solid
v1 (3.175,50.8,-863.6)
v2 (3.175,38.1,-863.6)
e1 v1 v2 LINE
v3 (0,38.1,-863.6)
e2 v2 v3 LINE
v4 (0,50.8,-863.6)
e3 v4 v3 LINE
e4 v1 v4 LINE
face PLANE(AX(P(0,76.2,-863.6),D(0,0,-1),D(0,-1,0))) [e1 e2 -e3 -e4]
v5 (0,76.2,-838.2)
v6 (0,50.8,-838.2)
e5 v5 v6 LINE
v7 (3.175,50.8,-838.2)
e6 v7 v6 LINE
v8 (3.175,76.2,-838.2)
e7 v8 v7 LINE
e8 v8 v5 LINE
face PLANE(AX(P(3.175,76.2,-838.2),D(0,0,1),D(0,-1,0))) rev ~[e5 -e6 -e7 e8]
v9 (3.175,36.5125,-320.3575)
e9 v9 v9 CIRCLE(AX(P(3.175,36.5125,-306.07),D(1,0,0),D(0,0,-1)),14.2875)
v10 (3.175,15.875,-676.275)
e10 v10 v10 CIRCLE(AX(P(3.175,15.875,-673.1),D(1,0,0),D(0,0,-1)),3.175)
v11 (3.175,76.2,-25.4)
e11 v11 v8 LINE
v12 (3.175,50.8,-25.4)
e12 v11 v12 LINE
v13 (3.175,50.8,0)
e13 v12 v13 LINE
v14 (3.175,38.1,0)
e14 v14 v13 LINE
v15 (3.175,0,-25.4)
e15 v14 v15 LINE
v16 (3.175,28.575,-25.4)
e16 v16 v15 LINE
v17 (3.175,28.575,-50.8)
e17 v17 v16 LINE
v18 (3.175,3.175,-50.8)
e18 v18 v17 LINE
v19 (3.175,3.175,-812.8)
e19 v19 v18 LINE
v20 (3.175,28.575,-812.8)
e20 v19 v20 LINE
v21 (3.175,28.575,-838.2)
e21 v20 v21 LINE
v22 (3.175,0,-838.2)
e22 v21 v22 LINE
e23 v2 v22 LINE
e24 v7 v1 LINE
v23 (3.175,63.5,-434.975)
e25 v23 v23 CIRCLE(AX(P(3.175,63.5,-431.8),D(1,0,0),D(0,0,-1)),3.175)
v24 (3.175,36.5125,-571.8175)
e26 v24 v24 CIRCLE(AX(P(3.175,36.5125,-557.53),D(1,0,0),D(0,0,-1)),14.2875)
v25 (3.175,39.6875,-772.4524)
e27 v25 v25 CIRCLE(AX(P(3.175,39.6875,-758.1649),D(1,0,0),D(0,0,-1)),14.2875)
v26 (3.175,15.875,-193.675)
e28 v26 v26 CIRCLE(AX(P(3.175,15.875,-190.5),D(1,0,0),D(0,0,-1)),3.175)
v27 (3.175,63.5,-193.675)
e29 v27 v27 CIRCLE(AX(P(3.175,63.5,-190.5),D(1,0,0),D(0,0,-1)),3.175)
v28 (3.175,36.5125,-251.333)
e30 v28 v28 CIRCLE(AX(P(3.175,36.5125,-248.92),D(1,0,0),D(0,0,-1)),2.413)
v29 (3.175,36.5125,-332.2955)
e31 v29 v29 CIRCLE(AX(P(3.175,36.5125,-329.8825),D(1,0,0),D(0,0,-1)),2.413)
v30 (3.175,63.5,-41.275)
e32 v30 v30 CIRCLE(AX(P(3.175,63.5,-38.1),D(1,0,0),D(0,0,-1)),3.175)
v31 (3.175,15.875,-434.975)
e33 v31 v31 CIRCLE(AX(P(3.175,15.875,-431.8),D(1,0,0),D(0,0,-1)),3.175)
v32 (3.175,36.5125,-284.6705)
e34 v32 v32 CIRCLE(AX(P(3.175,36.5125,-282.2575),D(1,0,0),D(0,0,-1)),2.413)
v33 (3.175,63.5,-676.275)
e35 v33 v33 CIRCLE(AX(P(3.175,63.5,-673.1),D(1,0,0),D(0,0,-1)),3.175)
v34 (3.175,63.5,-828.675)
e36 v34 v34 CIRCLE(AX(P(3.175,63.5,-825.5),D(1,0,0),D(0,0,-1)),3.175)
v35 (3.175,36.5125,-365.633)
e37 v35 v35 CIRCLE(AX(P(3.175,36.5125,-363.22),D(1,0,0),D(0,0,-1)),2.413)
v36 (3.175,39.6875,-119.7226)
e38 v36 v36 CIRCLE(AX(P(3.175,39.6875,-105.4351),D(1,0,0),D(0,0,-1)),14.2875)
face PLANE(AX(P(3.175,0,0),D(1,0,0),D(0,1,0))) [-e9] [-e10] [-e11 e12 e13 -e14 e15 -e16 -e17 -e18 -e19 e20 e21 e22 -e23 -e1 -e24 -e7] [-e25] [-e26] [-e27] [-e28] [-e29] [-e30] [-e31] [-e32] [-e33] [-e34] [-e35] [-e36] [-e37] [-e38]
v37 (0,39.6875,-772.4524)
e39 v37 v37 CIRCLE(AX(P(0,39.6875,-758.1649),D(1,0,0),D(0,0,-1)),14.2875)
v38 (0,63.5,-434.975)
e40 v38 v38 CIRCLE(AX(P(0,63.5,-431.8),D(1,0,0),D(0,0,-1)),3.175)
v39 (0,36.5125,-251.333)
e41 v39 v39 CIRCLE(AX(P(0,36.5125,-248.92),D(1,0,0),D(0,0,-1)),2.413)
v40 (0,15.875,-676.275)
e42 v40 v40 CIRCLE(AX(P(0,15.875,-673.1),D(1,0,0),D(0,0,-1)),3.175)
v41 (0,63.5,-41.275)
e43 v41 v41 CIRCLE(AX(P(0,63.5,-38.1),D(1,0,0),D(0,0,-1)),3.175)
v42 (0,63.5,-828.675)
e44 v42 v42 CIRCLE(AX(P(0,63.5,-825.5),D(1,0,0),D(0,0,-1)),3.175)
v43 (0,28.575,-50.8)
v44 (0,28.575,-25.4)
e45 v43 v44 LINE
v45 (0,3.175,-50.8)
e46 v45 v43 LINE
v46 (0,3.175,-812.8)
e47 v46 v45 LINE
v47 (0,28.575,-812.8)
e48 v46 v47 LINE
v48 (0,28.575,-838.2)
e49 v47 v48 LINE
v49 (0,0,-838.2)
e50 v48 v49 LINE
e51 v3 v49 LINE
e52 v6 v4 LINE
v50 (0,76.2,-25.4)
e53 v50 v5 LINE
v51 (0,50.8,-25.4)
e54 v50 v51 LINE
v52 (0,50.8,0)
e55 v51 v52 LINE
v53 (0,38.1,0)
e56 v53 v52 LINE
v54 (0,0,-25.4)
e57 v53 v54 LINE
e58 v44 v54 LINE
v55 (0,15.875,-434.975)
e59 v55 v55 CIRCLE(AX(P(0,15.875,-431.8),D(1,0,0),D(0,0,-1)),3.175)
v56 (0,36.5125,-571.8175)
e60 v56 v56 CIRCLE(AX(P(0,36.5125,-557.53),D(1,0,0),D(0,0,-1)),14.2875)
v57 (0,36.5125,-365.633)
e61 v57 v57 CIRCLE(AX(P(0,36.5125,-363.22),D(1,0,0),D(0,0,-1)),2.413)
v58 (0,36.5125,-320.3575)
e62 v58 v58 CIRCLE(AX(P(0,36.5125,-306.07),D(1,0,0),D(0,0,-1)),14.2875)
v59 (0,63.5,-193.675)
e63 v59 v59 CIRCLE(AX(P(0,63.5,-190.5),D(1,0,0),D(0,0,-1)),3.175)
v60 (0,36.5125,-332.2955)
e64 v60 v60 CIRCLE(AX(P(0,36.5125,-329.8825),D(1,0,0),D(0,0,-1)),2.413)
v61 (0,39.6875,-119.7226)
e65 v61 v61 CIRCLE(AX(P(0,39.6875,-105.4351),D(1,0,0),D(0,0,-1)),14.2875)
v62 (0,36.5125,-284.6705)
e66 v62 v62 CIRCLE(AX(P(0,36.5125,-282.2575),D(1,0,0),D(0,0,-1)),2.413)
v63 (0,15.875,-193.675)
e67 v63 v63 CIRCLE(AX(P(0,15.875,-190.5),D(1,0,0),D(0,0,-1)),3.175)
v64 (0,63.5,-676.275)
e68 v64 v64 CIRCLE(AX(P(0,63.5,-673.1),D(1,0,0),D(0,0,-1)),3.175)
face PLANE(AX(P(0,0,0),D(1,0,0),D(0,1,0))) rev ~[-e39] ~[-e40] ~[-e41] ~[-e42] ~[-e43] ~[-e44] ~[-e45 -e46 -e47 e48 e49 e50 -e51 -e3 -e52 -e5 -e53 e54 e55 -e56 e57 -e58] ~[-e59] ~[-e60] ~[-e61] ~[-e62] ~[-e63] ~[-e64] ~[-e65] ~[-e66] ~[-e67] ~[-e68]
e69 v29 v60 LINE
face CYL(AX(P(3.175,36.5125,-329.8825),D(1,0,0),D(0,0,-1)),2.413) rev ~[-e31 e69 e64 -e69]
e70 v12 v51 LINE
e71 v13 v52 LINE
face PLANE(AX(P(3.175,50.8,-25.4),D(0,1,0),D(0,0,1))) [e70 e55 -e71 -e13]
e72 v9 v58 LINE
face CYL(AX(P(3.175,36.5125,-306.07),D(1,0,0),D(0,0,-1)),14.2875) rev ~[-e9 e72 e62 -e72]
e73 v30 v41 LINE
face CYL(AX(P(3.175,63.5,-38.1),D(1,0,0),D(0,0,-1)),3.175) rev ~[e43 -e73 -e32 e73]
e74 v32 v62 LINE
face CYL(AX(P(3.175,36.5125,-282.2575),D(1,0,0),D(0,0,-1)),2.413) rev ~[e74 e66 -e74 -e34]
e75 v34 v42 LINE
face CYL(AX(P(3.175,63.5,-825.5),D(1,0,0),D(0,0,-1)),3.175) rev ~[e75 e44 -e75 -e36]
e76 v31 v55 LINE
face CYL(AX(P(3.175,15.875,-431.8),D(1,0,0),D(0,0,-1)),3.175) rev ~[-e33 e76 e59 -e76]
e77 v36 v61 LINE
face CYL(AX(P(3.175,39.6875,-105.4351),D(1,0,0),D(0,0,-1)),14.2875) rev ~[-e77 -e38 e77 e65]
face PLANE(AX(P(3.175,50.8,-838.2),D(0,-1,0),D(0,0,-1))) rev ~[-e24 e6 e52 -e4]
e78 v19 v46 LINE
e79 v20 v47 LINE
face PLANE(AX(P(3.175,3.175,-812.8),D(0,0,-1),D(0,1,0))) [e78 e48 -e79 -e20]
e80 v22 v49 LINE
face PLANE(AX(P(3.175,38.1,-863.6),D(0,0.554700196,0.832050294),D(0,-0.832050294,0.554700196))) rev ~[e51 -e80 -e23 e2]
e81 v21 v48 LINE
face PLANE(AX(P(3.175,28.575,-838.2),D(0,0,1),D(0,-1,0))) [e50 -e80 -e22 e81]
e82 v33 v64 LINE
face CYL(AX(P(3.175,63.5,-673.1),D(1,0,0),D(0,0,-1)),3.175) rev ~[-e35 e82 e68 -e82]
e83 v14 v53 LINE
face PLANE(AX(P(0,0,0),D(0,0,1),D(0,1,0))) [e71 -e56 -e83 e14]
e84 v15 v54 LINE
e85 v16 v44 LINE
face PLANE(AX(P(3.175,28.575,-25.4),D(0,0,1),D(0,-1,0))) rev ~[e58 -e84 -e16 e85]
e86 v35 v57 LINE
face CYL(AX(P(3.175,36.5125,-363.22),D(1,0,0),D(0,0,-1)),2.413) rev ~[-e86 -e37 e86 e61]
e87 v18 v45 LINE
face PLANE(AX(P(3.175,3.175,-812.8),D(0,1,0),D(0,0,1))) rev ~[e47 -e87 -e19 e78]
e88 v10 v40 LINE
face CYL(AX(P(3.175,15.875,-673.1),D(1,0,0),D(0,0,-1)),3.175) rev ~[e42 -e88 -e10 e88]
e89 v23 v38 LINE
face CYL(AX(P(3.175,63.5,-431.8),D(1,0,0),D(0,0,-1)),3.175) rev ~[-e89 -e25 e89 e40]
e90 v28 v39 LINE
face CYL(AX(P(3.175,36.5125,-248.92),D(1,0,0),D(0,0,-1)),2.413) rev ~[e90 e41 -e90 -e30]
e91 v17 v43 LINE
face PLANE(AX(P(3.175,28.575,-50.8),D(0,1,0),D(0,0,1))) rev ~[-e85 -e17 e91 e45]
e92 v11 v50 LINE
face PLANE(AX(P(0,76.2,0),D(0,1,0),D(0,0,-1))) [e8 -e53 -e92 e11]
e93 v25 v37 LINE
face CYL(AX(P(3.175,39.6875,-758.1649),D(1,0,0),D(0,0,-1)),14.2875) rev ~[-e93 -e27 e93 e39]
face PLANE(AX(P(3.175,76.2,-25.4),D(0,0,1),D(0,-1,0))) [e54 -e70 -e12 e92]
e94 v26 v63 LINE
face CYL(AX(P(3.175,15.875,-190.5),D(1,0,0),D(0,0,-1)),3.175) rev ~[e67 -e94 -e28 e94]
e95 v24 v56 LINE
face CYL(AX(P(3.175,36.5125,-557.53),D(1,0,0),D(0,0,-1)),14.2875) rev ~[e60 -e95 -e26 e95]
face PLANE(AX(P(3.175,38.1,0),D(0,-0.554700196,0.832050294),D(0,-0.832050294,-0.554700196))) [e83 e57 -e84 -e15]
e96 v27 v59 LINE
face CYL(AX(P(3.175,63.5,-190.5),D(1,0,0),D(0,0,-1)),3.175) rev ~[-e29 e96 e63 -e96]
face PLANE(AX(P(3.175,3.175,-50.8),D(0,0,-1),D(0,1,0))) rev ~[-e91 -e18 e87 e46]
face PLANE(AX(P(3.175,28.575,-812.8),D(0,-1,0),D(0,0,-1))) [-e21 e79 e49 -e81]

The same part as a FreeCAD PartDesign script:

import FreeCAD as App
import Part
import Sketcher
Q = App.Units.Quantity

doc = App.newDocument("Part")
body = doc.addObject("PartDesign::Body", "Body")

# Sketch on YZ plane
sketch1 = body.newObject("Sketcher::SketchObject", "Sketch")
sketch1.AttachmentSupport = (doc.getObject("YZ_Plane"), [""])
sketch1.MapMode = "FlatFace"
sketch1.addGeometry(Part.LineSegment(App.Vector(76, 0, 0), App.Vector(0, 0, 0)), False)
sketch1.addGeometry(Part.LineSegment(App.Vector(0, 0, 0), App.Vector(0, -864, 0)), False)
sketch1.addGeometry(Part.LineSegment(App.Vector(0, -864, 0), App.Vector(76, -864, 0)), False)
sketch1.addGeometry(Part.LineSegment(App.Vector(76, -864, 0), App.Vector(76, 0, 0)), False)
sketch1.addConstraint(Sketcher.Constraint("Coincident", 0, 2, 1, 1))
sketch1.addConstraint(Sketcher.Constraint("Coincident", 1, 2, 2, 1))
sketch1.addConstraint(Sketcher.Constraint("Coincident", 2, 2, 3, 1))
sketch1.addConstraint(Sketcher.Constraint("Coincident", 3, 2, 0, 1))
sketch1.addConstraint(Sketcher.Constraint("Horizontal", 0))
sketch1.addConstraint(Sketcher.Constraint("Vertical", 1))
sketch1.addConstraint(Sketcher.Constraint("Horizontal", 2))
sketch1.addConstraint(Sketcher.Constraint("Vertical", 3))
sketch1.addConstraint(Sketcher.Constraint("Coincident", 0, 2, -1, 1))
sketch1.addConstraint(Sketcher.Constraint("DistanceX", 0, 2, 0, 1, Q("3 in")))
sketch1.addConstraint(Sketcher.Constraint("DistanceY", 1, 2, 1, 1, Q("34 in")))
pad1 = body.newObject("PartDesign::Pad", "Pad")
pad1.Profile = sketch1
pad1.Length = Q("0.125 in")

# Sketch on YZ plane
sketch2 = body.newObject("Sketcher::SketchObject", "Sketch001")
sketch2.AttachmentSupport = (doc.getObject("YZ_Plane"), [""])
sketch2.MapMode = "FlatFace"
sketch2.AttachmentOffset = App.Placement(App.Vector(0, 0, 0.125 * 25.4), App.Rotation())
sketch2.addGeometry(Part.LineSegment(App.Vector(0, -25.4, 0), App.Vector(38.1, 0, 0)), False)
sketch2.addGeometry(Part.LineSegment(App.Vector(38.1, 0, 0), App.Vector(0, 0, 0)), False)
sketch2.addGeometry(Part.LineSegment(App.Vector(0, 0, 0), App.Vector(0, -25.4, 0)), False)
sketch2.addGeometry(Part.LineSegment(App.Vector(38.1, -863.6, 0), App.Vector(0, -838.2, 0)), False)
sketch2.addGeometry(Part.LineSegment(App.Vector(0, -838.2, 0), App.Vector(0, -863.6, 0)), False)
sketch2.addGeometry(Part.LineSegment(App.Vector(0, -863.6, 0), App.Vector(38.1, -863.6, 0)), False)
sketch2.addGeometry(Part.Circle(App.Vector(36.5, -306.1, 0), App.Vector(0, 0, 1), 14.3), False)
sketch2.addGeometry(Part.Circle(App.Vector(36.5, -557.5, 0), App.Vector(0, 0, 1), 14.3), False)
sketch2.addGeometry(Part.Circle(App.Vector(39.7, -105.4, 0), App.Vector(0, 0, 1), 14.3), False)
sketch2.addGeometry(Part.Circle(App.Vector(39.7, -758.2, 0), App.Vector(0, 0, 1), 14.3), False)
sketch2.addGeometry(Part.Circle(App.Vector(63.5, -12.7, 0), App.Vector(0, 0, 1), 3.2), False)
sketch2.addGeometry(Part.Circle(App.Vector(63.5, -850.9, 0), App.Vector(0, 0, 1), 3.2), False)
sketch2.addGeometry(Part.Circle(App.Vector(15.9, -825.5, 0), App.Vector(0, 0, 1), 3.2), False)
sketch2.addGeometry(Part.Circle(App.Vector(15.9, -38.1, 0), App.Vector(0, 0, 1), 3.2), False)
sketch2.addGeometry(Part.Circle(App.Vector(15.9, -190.5, 0), App.Vector(0, 0, 1), 3.2), False)
sketch2.addGeometry(Part.Circle(App.Vector(15.9, -431.8, 0), App.Vector(0, 0, 1), 3.2), False)
sketch2.addGeometry(Part.Circle(App.Vector(63.5, -431.8, 0), App.Vector(0, 0, 1), 3.2), False)
sketch2.addGeometry(Part.Circle(App.Vector(63.5, -673.1, 0), App.Vector(0, 0, 1), 3.2), False)
sketch2.addGeometry(Part.Circle(App.Vector(15.9, -673.1, 0), App.Vector(0, 0, 1), 3.2), False)
sketch2.addGeometry(Part.Circle(App.Vector(63.5, -190.5, 0), App.Vector(0, 0, 1), 3.2), False)
sketch2.addConstraint(Sketcher.Constraint("Coincident", 0, 2, 1, 1))
sketch2.addConstraint(Sketcher.Constraint("Coincident", 1, 2, 2, 1))
sketch2.addConstraint(Sketcher.Constraint("Coincident", 2, 2, 0, 1))
sketch2.addConstraint(Sketcher.Constraint("Coincident", 3, 2, 4, 1))
sketch2.addConstraint(Sketcher.Constraint("Coincident", 4, 2, 5, 1))
sketch2.addConstraint(Sketcher.Constraint("Coincident", 5, 2, 3, 1))
sketch2.addConstraint(Sketcher.Constraint("Horizontal", 1))
sketch2.addConstraint(Sketcher.Constraint("Vertical", 2))
sketch2.addConstraint(Sketcher.Constraint("Vertical", 4))
sketch2.addConstraint(Sketcher.Constraint("Horizontal", 5))
sketch2.addConstraint(Sketcher.Constraint("Coincident", 1, 2, -1, 1))
sketch2.addConstraint(Sketcher.Constraint("Equal", 6, 7))
sketch2.addConstraint(Sketcher.Constraint("Equal", 7, 8))
sketch2.addConstraint(Sketcher.Constraint("Equal", 8, 9))
sketch2.addConstraint(Sketcher.Constraint("Equal", 10, 11))
sketch2.addConstraint(Sketcher.Constraint("Equal", 11, 12))
sketch2.addConstraint(Sketcher.Constraint("Equal", 12, 13))
sketch2.addConstraint(Sketcher.Constraint("Equal", 13, 14))
sketch2.addConstraint(Sketcher.Constraint("Equal", 14, 15))
sketch2.addConstraint(Sketcher.Constraint("Equal", 15, 16))
sketch2.addConstraint(Sketcher.Constraint("Equal", 16, 17))
sketch2.addConstraint(Sketcher.Constraint("Equal", 17, 18))
sketch2.addConstraint(Sketcher.Constraint("Equal", 18, 19))
sketch2.addConstraint(Sketcher.Constraint("PointOnObject", 3, 2, -2))
sketch2.addConstraint(Sketcher.Constraint("Horizontal", 15, 3, 16, 3))
sketch2.addConstraint(Sketcher.Constraint("Horizontal", 17, 3, 18, 3))
sketch2.addConstraint(Sketcher.Constraint("Horizontal", 14, 3, 19, 3))
sketch2.addConstraint(Sketcher.Constraint("Vertical", 6, 3, 7, 3))
sketch2.addConstraint(Sketcher.Constraint("Vertical", 8, 3, 9, 3))
sketch2.addConstraint(Sketcher.Constraint("Vertical", 10, 3, 11, 3))
sketch2.addConstraint(Sketcher.Constraint("Vertical", 12, 3, 13, 3))
sketch2.addConstraint(Sketcher.Constraint("Vertical", 13, 3, 14, 3))
sketch2.addConstraint(Sketcher.Constraint("Vertical", 14, 3, 15, 3))
sketch2.addConstraint(Sketcher.Constraint("Vertical", 11, 3, 16, 3))
sketch2.addConstraint(Sketcher.Constraint("Vertical", 16, 3, 17, 3))
sketch2.addConstraint(Sketcher.Constraint("Vertical", 15, 3, 18, 3))
sketch2.addConstraint(Sketcher.Constraint("Vertical", 17, 3, 19, 3))
sketch2.addConstraint(Sketcher.Constraint("Vertical", 0, 2, 5, 2))
sketch2.addConstraint(Sketcher.Constraint("Equal", 2, 4))
sketch2.addConstraint(Sketcher.Constraint("Diameter", 10, Q("0.25 in")))
sketch2.addConstraint(Sketcher.Constraint("DistanceY", 2, 2, 2, 1, Q("1 in")))
sketch2.addConstraint(Sketcher.Constraint("Diameter", 6, Q("1.125 in")))
sketch2.addConstraint(Sketcher.Constraint("DistanceX", 1, 2, 1, 1, Q("1.5 in")))
sketch2.addConstraint(Sketcher.Constraint("DistanceY", 4, 2, -1, 1, Q("34 in")))
sketch2.addConstraint(Sketcher.Constraint("DistanceY", 11, 3, 12, 3, Q("1 in")))
sketch2.addConstraint(Sketcher.Constraint("DistanceY", 13, 3, 10, 3, Q("1 in")))
sketch2.addConstraint(Sketcher.Constraint("DistanceX", 0, 2, 10, 3, Q("1 in")))
sketch2.addConstraint(Sketcher.Constraint("DistanceY", 10, 3, -1, 1, Q("0.5 in")))
sketch2.addConstraint(Sketcher.Constraint("DistanceY", 15, 3, 14, 3, Q("9.5 in")))
sketch2.addConstraint(Sketcher.Constraint("DistanceY", 17, 3, 16, 3, Q("9.5 in")))
sketch2.addConstraint(Sketcher.Constraint("DistanceY", 3, 2, 12, 3, Q("0.5 in")))
sketch2.addConstraint(Sketcher.Constraint("DistanceX", -1, 1, 12, 3, Q("0.625 in")))
sketch2.addConstraint(Sketcher.Constraint("DistanceY", 15, 3, -1, 1, Q("17 in")))
sketch2.addConstraint(Sketcher.Constraint("DistanceY", 7, 3, 6, 3, Q("9.9 in")))
sketch2.addConstraint(Sketcher.Constraint("DistanceY", 6, 3, -1, 1, Q("12.05 in")))
sketch2.addConstraint(Sketcher.Constraint("DistanceX", -1, 1, 6, 3, Q("1.4375 in")))
sketch2.addConstraint(Sketcher.Constraint("DistanceX", -1, 1, 8, 3, Q("1.5625 in")))
sketch2.addConstraint(Sketcher.Constraint("DistanceY", 8, 3, -1, 1, Q("4.151 in")))
sketch2.addConstraint(Sketcher.Constraint("DistanceY", 9, 3, -1, 1, Q("29.849 in")))
pocket1 = body.newObject("PartDesign::Pocket", "Pocket")
pocket1.Profile = sketch2
pocket1.Length = Q("1 in")

# Sketch on YZ plane
sketch3 = body.newObject("Sketcher::SketchObject", "Sketch002")
sketch3.AttachmentSupport = (doc.getObject("YZ_Plane"), [""])
sketch3.MapMode = "FlatFace"
sketch3.AttachmentOffset = App.Placement(App.Vector(0, 0, 0.125 * 25.4), App.Rotation())
sketch3.addGeometry(Part.LineSegment(App.Vector(76.2, -863.6, 0), App.Vector(76.2, -838.2, 0)), False)
sketch3.addGeometry(Part.LineSegment(App.Vector(76.2, -838.2, 0), App.Vector(50.8, -838.2, 0)), False)
sketch3.addGeometry(Part.LineSegment(App.Vector(50.8, -838.2, 0), App.Vector(50.8, -863.6, 0)), False)
sketch3.addGeometry(Part.LineSegment(App.Vector(50.8, -863.6, 0), App.Vector(76.2, -863.6, 0)), False)
sketch3.addGeometry(Part.LineSegment(App.Vector(76.2, -25.4, 0), App.Vector(76.2, 0, 0)), False)
sketch3.addGeometry(Part.LineSegment(App.Vector(76.2, 0, 0), App.Vector(50.8, 0, 0)), False)
sketch3.addGeometry(Part.LineSegment(App.Vector(50.8, 0, 0), App.Vector(50.8, -25.4, 0)), False)
sketch3.addGeometry(Part.LineSegment(App.Vector(50.8, -25.4, 0), App.Vector(76.2, -25.4, 0)), False)
sketch3.addGeometry(Part.LineSegment(App.Vector(28.6, -25.4, 0), App.Vector(0, -25.4, 0)), False)
sketch3.addGeometry(Part.LineSegment(App.Vector(0, -25.4, 0), App.Vector(0, -838.2, 0)), False)
sketch3.addGeometry(Part.LineSegment(App.Vector(0, -838.2, 0), App.Vector(28.6, -838.2, 0)), False)
sketch3.addGeometry(Part.LineSegment(App.Vector(28.6, -838.2, 0), App.Vector(28.6, -812.8, 0)), False)
sketch3.addGeometry(Part.LineSegment(App.Vector(28.6, -812.8, 0), App.Vector(3.2, -812.8, 0)), False)
sketch3.addGeometry(Part.LineSegment(App.Vector(3.2, -812.8, 0), App.Vector(3.2, -50.8, 0)), False)
sketch3.addGeometry(Part.LineSegment(App.Vector(3.2, -50.8, 0), App.Vector(28.6, -50.8, 0)), False)
sketch3.addGeometry(Part.LineSegment(App.Vector(28.6, -50.8, 0), App.Vector(28.6, -25.4, 0)), False)
sketch3.addGeometry(Part.Circle(App.Vector(63.5, -38.1, 0), App.Vector(0, 0, 1), 3.2), False)
sketch3.addGeometry(Part.Circle(App.Vector(63.5, -825.5, 0), App.Vector(0, 0, 1), 3.2), False)
sketch3.addGeometry(Part.Circle(App.Vector(36.5, -329.9, 0), App.Vector(0, 0, 1), 2.4), False)
sketch3.addGeometry(Part.Circle(App.Vector(36.5, -363.2, 0), App.Vector(0, 0, 1), 2.4), False)
sketch3.addGeometry(Part.Circle(App.Vector(36.5, -282.3, 0), App.Vector(0, 0, 1), 2.4), False)
sketch3.addGeometry(Part.Circle(App.Vector(36.5, -248.9, 0), App.Vector(0, 0, 1), 2.4), False)
sketch3.addConstraint(Sketcher.Constraint("Coincident", 0, 2, 1, 1))
sketch3.addConstraint(Sketcher.Constraint("Coincident", 1, 2, 2, 1))
sketch3.addConstraint(Sketcher.Constraint("Coincident", 2, 2, 3, 1))
sketch3.addConstraint(Sketcher.Constraint("Coincident", 3, 2, 0, 1))
sketch3.addConstraint(Sketcher.Constraint("Coincident", 4, 2, 5, 1))
sketch3.addConstraint(Sketcher.Constraint("Coincident", 5, 2, 6, 1))
sketch3.addConstraint(Sketcher.Constraint("Coincident", 6, 2, 7, 1))
sketch3.addConstraint(Sketcher.Constraint("Coincident", 7, 2, 4, 1))
sketch3.addConstraint(Sketcher.Constraint("Coincident", 8, 2, 9, 1))
sketch3.addConstraint(Sketcher.Constraint("Coincident", 9, 2, 10, 1))
sketch3.addConstraint(Sketcher.Constraint("Coincident", 10, 2, 11, 1))
sketch3.addConstraint(Sketcher.Constraint("Coincident", 11, 2, 12, 1))
sketch3.addConstraint(Sketcher.Constraint("Coincident", 12, 2, 13, 1))
sketch3.addConstraint(Sketcher.Constraint("Coincident", 13, 2, 14, 1))
sketch3.addConstraint(Sketcher.Constraint("Coincident", 14, 2, 15, 1))
sketch3.addConstraint(Sketcher.Constraint("Coincident", 15, 2, 8, 1))
sketch3.addConstraint(Sketcher.Constraint("Vertical", 0))
sketch3.addConstraint(Sketcher.Constraint("Horizontal", 1))
sketch3.addConstraint(Sketcher.Constraint("Vertical", 2))
sketch3.addConstraint(Sketcher.Constraint("Horizontal", 3))
sketch3.addConstraint(Sketcher.Constraint("Vertical", 4))
sketch3.addConstraint(Sketcher.Constraint("Horizontal", 5))
sketch3.addConstraint(Sketcher.Constraint("Vertical", 6))
sketch3.addConstraint(Sketcher.Constraint("Horizontal", 7))
sketch3.addConstraint(Sketcher.Constraint("Horizontal", 8))
sketch3.addConstraint(Sketcher.Constraint("Vertical", 9))
sketch3.addConstraint(Sketcher.Constraint("Horizontal", 10))
sketch3.addConstraint(Sketcher.Constraint("Vertical", 11))
sketch3.addConstraint(Sketcher.Constraint("Horizontal", 12))
sketch3.addConstraint(Sketcher.Constraint("Vertical", 13))
sketch3.addConstraint(Sketcher.Constraint("Horizontal", 14))
sketch3.addConstraint(Sketcher.Constraint("Vertical", 15))
sketch3.addConstraint(Sketcher.Constraint("Equal", 16, 17))
sketch3.addConstraint(Sketcher.Constraint("Equal", 18, 19))
sketch3.addConstraint(Sketcher.Constraint("Equal", 19, 20))
sketch3.addConstraint(Sketcher.Constraint("Equal", 20, 21))
sketch3.addConstraint(Sketcher.Constraint("PointOnObject", 4, 2, -1))
sketch3.addConstraint(Sketcher.Constraint("PointOnObject", 8, 2, -2))
sketch3.addConstraint(Sketcher.Constraint("Horizontal", 7, 2, 8, 2))
sketch3.addConstraint(Sketcher.Constraint("Horizontal", 1, 2, 9, 2))
sketch3.addConstraint(Sketcher.Constraint("Vertical", 16, 3, 17, 3))
sketch3.addConstraint(Sketcher.Constraint("Vertical", 18, 3, 19, 3))
sketch3.addConstraint(Sketcher.Constraint("Vertical", 19, 3, 20, 3))
sketch3.addConstraint(Sketcher.Constraint("Vertical", 20, 3, 21, 3))
sketch3.addConstraint(Sketcher.Constraint("Vertical", 3, 2, 4, 2))
sketch3.addConstraint(Sketcher.Constraint("Vertical", 2, 2, 5, 2))
sketch3.addConstraint(Sketcher.Constraint("Vertical", 11, 2, 14, 2))
sketch3.addConstraint(Sketcher.Constraint("Equal", 7, 12))
sketch3.addConstraint(Sketcher.Constraint("Equal", 14, 0))
sketch3.addConstraint(Sketcher.Constraint("Equal", 2, 4))
sketch3.addConstraint(Sketcher.Constraint("Equal", 6, 11))
sketch3.addConstraint(Sketcher.Constraint("Equal", 11, 15))
sketch3.addConstraint(Sketcher.Constraint("Diameter", 16, Q("0.25 in")))
sketch3.addConstraint(Sketcher.Constraint("Diameter", 18, Q("0.19 in")))
sketch3.addConstraint(Sketcher.Constraint("DistanceX", 1, 2, 1, 1, Q("1 in")))
sketch3.addConstraint(Sketcher.Constraint("DistanceY", 13, 1, 13, 2, Q("30 in")))
sketch3.addConstraint(Sketcher.Constraint("DistanceX", 8, 2, 8, 1, Q("1.125 in")))
sketch3.addConstraint(Sketcher.Constraint("DistanceX", -1, 1, 0, 2, Q("3 in")))
sketch3.addConstraint(Sketcher.Constraint("DistanceY", 17, 3, 16, 3, Q("31 in")))
sketch3.addConstraint(Sketcher.Constraint("DistanceX", -1, 1, 16, 3, Q("2.5 in")))
sketch3.addConstraint(Sketcher.Constraint("DistanceY", 16, 3, -1, 1, Q("1.5 in")))
sketch3.addConstraint(Sketcher.Constraint("DistanceY", 19, 3, -1, 1, Q("14.3 in")))
sketch3.addConstraint(Sketcher.Constraint("DistanceY", 21, 3, -1, 1, Q("9.8 in")))
sketch3.addConstraint(Sketcher.Constraint("DistanceX", -1, 1, 18, 3, Q("1.4375 in")))
sketch3.addConstraint(Sketcher.Constraint("DistanceY", 19, 3, 18, 3, Q("1.3125 in")))
sketch3.addConstraint(Sketcher.Constraint("DistanceY", 18, 3, 20, 3, Q("1.875 in")))
pocket2 = body.newObject("PartDesign::Pocket", "Pocket001")
pocket2.Profile = sketch3
pocket2.Length = Q("1 in")

doc.recompute()
